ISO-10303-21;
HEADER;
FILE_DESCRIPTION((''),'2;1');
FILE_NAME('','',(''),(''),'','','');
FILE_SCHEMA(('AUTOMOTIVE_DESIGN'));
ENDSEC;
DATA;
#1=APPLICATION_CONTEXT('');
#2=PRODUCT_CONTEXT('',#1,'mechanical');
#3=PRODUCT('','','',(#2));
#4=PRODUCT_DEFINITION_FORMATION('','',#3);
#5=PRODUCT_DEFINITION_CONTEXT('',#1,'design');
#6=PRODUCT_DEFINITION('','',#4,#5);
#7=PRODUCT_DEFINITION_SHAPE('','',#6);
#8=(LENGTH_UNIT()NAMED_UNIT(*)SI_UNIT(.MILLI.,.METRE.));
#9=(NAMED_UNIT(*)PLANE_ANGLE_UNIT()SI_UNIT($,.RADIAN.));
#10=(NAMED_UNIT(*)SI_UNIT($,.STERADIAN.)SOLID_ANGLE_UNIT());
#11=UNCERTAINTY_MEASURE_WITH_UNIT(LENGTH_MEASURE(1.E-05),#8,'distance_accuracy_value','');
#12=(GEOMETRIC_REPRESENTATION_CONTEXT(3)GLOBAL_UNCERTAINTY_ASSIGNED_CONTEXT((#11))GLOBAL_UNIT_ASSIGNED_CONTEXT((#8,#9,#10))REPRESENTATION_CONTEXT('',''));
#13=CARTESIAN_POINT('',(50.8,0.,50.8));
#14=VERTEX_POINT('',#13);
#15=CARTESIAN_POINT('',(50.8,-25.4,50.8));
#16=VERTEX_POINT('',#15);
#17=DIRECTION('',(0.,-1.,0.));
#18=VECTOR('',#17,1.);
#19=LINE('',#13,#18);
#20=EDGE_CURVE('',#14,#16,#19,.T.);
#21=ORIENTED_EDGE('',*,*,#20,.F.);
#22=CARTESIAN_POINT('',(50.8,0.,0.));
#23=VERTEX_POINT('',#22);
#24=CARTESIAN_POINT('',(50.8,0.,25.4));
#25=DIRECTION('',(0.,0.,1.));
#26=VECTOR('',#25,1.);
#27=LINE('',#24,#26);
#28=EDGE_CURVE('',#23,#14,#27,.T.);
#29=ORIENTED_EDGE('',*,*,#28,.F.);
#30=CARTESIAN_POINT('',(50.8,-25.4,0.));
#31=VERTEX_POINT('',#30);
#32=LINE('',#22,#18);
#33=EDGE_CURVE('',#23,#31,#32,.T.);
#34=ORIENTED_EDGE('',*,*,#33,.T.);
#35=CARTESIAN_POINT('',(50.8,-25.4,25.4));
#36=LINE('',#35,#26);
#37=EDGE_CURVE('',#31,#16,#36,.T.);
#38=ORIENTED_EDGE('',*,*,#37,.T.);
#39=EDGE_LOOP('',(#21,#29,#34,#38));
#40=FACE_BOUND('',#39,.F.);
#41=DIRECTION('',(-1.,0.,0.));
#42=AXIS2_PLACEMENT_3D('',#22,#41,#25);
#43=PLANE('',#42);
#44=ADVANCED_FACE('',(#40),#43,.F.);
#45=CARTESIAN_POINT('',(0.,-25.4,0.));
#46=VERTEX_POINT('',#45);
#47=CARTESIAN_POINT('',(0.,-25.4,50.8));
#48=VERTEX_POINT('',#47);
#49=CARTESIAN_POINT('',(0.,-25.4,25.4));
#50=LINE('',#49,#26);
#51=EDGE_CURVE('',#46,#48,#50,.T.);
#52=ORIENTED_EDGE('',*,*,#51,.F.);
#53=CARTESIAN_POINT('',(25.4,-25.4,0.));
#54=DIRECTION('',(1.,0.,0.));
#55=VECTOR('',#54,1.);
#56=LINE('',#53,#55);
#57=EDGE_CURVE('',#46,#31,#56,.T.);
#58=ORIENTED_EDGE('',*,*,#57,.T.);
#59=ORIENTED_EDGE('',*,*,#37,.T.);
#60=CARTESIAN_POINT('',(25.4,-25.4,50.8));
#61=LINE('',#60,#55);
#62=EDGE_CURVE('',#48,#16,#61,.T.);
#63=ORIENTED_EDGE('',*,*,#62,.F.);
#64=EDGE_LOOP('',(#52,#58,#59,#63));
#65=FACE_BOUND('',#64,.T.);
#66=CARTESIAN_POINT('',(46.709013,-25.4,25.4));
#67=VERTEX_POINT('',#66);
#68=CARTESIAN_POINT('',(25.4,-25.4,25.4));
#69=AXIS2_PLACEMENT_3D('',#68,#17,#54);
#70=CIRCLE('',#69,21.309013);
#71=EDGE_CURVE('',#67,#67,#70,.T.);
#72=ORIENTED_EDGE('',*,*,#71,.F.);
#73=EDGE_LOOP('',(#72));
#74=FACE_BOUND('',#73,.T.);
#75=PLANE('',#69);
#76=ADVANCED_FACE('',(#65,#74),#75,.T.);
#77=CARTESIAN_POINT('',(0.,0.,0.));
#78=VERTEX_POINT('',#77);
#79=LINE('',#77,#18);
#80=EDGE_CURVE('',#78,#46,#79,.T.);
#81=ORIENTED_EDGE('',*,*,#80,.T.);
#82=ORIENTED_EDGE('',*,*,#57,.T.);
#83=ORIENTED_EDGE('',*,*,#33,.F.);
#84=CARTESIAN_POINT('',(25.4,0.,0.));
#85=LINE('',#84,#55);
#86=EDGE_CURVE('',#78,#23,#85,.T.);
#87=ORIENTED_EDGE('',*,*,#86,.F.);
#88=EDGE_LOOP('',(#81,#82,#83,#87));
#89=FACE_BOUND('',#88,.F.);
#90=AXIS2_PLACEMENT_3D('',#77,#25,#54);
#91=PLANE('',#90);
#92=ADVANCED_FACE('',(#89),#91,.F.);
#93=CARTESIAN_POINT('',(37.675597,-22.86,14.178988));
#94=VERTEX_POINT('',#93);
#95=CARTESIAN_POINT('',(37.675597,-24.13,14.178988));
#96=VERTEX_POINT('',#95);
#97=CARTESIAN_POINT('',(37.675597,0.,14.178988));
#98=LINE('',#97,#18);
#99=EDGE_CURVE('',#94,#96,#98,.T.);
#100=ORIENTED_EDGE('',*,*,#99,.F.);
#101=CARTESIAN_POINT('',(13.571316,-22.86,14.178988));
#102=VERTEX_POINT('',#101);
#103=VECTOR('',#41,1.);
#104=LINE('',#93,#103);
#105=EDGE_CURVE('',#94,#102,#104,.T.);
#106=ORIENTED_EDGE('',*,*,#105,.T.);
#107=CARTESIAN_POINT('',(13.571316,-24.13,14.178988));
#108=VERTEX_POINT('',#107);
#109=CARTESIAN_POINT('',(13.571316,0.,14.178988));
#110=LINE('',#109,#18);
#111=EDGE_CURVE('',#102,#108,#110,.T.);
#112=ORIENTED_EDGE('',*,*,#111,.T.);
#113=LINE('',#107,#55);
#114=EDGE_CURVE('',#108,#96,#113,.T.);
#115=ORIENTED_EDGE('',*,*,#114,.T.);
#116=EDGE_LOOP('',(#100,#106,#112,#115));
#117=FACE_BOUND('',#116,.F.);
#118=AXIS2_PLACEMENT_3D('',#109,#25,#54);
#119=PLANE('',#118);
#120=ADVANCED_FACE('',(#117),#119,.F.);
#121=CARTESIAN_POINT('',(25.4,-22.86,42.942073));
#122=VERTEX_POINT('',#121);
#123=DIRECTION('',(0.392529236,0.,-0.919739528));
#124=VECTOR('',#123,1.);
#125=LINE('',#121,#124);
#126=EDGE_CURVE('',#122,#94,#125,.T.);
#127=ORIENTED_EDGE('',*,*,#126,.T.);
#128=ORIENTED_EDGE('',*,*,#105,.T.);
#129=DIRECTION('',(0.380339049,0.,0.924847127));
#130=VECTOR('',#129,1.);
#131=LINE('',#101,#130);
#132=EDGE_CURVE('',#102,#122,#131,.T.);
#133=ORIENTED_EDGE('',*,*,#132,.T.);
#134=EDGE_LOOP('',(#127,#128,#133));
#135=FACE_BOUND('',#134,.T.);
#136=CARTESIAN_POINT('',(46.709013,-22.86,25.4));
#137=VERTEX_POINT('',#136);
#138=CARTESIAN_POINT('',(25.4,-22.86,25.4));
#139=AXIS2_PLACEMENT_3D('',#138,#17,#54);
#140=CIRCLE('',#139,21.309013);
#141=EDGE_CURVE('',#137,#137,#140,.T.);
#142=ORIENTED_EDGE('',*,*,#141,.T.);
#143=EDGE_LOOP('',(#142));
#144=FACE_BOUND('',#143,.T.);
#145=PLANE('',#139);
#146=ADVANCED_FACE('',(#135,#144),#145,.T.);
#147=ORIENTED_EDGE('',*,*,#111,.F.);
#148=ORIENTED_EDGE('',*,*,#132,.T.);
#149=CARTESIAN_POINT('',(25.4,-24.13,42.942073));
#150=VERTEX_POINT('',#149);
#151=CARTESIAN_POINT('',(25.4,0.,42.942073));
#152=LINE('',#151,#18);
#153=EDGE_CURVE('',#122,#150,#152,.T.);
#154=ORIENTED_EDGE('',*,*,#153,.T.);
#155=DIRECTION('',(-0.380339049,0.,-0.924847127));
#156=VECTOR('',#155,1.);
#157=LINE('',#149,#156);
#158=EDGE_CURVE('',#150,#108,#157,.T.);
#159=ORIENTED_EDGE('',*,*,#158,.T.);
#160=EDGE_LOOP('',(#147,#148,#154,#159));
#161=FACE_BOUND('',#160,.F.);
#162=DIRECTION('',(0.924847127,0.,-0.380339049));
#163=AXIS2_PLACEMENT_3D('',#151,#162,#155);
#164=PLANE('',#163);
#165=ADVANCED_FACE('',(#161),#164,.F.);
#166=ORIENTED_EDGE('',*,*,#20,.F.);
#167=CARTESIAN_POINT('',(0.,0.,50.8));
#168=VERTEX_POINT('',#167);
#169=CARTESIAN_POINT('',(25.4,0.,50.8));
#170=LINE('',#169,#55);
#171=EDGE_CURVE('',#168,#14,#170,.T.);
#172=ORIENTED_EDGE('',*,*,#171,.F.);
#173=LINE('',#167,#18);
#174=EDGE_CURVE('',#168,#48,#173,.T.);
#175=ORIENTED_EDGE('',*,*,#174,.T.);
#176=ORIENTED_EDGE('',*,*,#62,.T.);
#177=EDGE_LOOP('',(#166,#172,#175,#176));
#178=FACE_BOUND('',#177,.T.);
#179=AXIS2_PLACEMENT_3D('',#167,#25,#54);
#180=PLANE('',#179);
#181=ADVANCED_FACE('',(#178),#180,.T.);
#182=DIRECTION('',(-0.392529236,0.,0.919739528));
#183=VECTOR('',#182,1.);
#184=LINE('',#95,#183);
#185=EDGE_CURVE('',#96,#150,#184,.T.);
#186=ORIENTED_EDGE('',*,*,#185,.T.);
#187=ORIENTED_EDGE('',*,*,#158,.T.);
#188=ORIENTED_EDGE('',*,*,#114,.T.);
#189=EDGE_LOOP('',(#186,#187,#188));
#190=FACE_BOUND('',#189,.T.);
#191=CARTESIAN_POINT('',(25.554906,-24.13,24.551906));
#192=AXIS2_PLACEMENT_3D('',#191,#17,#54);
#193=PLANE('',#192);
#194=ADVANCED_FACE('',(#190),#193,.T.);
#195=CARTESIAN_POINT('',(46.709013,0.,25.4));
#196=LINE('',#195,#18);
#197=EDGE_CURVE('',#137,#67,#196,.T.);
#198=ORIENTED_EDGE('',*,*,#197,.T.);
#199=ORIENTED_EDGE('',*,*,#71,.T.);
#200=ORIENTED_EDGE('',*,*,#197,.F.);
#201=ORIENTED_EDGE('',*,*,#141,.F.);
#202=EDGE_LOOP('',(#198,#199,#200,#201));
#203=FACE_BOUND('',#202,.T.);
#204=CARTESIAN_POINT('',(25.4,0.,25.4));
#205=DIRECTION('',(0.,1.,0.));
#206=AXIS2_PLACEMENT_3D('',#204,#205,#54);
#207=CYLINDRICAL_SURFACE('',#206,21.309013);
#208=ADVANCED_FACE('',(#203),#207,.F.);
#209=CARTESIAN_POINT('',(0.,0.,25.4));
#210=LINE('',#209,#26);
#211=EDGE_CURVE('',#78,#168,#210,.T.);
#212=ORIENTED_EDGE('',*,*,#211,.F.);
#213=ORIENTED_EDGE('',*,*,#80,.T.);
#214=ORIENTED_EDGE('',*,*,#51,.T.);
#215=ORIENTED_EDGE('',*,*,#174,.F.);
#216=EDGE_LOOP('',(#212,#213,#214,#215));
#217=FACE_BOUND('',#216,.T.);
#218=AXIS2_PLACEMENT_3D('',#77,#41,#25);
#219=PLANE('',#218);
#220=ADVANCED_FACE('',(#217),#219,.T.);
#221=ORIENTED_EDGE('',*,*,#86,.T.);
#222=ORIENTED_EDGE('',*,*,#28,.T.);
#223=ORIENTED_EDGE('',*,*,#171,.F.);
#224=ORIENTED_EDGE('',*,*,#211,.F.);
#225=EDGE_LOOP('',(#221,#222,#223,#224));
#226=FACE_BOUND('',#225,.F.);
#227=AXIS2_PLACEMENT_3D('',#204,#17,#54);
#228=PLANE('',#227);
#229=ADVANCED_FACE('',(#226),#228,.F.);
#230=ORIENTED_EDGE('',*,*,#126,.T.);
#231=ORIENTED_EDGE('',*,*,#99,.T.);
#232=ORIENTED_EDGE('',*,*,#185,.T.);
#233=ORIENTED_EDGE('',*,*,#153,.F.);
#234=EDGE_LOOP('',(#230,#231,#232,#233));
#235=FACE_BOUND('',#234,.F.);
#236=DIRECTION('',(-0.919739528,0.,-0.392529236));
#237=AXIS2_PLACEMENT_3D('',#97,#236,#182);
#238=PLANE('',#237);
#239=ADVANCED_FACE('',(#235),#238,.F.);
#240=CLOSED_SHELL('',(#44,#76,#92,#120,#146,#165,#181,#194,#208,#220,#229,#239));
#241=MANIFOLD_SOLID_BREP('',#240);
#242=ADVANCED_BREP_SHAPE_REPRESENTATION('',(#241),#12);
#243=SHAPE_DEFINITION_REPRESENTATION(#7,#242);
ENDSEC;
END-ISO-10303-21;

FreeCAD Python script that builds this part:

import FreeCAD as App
import Part
import Sketcher
Q = App.Units.Quantity


def add_polygon(sketch, points):
    """Adds a closed chain of lines whose ends are joined by coincident constraints."""
    first, n = sketch.GeometryCount, len(points)
    for a, b in zip(points, points[1:] + points[:1]):
        sketch.addGeometry(Part.LineSegment(App.Vector(*a, 0), App.Vector(*b, 0)), False)
    for i in range(n):
        sketch.addConstraint(Sketcher.Constraint("Coincident", first + i, 2, first + (i + 1) % n, 1))

doc = App.newDocument("Part")
body = doc.addObject("PartDesign::Body", "Body")

# Sketch on XZ plane
sketch1 = body.newObject("Sketcher::SketchObject", "Sketch")
sketch1.AttachmentSupport = (doc.getObject("XZ_Plane"), [""])
sketch1.MapMode = "FlatFace"
add_polygon(sketch1, [(0, 51), (0, 0), (51, 0), (51, 51)])  # lines 0-3
sketch1.addGeometry(Part.Circle(App.Vector(25, 25, 0), App.Vector(0, 0, 1), 21), False)  # 4
sketch1.addConstraint([
    Sketcher.Constraint("Vertical", 0),
    Sketcher.Constraint("Horizontal", 1),
    Sketcher.Constraint("Vertical", 2),
    Sketcher.Constraint("Horizontal", 3),
    Sketcher.Constraint("Coincident", 0, 2, -1, 1),
    Sketcher.Constraint("Equal", 3, 0),
    Sketcher.Constraint("DistanceX", 1, 1, 1, 2, Q("2 in")),
    Sketcher.Constraint("DistanceX", -1, 1, 4, 3, Q("1 in")),
    Sketcher.Constraint("DistanceY", -1, 1, 4, 3, Q("1 in")),
    Sketcher.Constraint("Diameter", 4, Q("42.618026 mm")),
])
pad1 = body.newObject("PartDesign::Pad", "Pad")
pad1.Profile = sketch1
pad1.Length = Q("1 in")

# Sketch on XZ plane
sketch2 = body.newObject("Sketcher::SketchObject", "Sketch001")
sketch2.AttachmentSupport = (doc.getObject("XZ_Plane"), [""])
sketch2.MapMode = "FlatFace"
sketch2.addGeometry(Part.Circle(App.Vector(25, 25, 0), App.Vector(0, 0, 1), 21), False)  # 0
add_polygon(sketch2, [(38, 14), (14, 14), (25, 43)])  # lines 1-3
sketch2.addConstraint([
    Sketcher.Constraint("Horizontal", 1),
    Sketcher.Constraint("Vertical", 0, 3, 2, 2),
    Sketcher.Constraint("DistanceX", -1, 1, 0, 3, Q("1 in")),
    Sketcher.Constraint("DistanceY", -1, 1, 0, 3, Q("1 in")),
    Sketcher.Constraint("Diameter", 0, Q("42.618026 mm")),
    Sketcher.Constraint("DistanceX", 1, 2, 1, 1, Q("24.104281 mm")),
    Sketcher.Constraint("DistanceY", 1, 2, 0, 3, Q("11.221012 mm")),
    Sketcher.Constraint("Distance", 2, Q("31.100367 mm")),
    Sketcher.Constraint("Distance", 3, Q("31.273077 mm")),
])
pad2 = body.newObject("PartDesign::Pad", "Pad001")
pad2.Profile = sketch2
pad2.Length = Q("0.9 in")

# Sketch on XZ plane
sketch3 = body.newObject("Sketcher::SketchObject", "Sketch002")
sketch3.AttachmentSupport = (doc.getObject("XZ_Plane"), [""])
sketch3.MapMode = "FlatFace"
add_polygon(sketch3, [(38, 14), (25, 43), (14, 14)])  # lines 0-2
sketch3.addConstraint([
    Sketcher.Constraint("Horizontal", 2),
    Sketcher.Constraint("DistanceX", -1, 1, 0, 2, Q("1 in")),
    Sketcher.Constraint("DistanceX", 2, 1, 2, 2, Q("24.104281 mm")),
    Sketcher.Constraint("Distance", 0, Q("31.273077 mm")),
    Sketcher.Constraint("Distance", 1, Q("31.100367 mm")),
    Sketcher.Constraint("DistanceY", -1, 1, 0, 2, Q("42.942073 mm")),
])
pad3 = body.newObject("PartDesign::Pad", "Pad002")
pad3.Profile = sketch3
pad3.Length = Q("0.95 in")

doc.recompute()
